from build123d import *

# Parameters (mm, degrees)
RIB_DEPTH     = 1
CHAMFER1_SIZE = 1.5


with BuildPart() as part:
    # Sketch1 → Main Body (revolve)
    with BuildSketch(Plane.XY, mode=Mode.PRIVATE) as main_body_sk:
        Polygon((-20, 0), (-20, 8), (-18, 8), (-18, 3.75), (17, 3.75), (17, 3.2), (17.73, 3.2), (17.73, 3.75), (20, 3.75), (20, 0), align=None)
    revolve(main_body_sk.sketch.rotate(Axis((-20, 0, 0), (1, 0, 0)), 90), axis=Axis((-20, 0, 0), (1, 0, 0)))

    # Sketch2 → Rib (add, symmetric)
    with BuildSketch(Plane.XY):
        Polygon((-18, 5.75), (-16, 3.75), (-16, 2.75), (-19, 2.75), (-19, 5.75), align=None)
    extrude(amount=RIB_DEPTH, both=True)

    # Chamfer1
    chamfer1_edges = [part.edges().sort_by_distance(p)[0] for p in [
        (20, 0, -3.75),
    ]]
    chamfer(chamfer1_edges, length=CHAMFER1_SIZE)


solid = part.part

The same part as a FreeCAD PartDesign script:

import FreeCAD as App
import Part
import Sketcher
Q = App.Units.Quantity


def edges_at(feature, points):
    """Names of the edges that pass closest to the given points."""
    edges = feature.Shape.Edges
    near = lambda p: min(range(len(edges)), key=lambda i: edges[i].distToShape(Part.Vertex(*p))[0])
    return sorted({f"Edge{near(p) + 1}" for p in points})


def add_polygon(sketch, points):
    """Adds a closed chain of lines whose ends are joined by coincident constraints."""
    first, n = sketch.GeometryCount, len(points)
    for a, b in zip(points, points[1:] + points[:1]):
        sketch.addGeometry(Part.LineSegment(App.Vector(*a, 0), App.Vector(*b, 0)), False)
    for i in range(n):
        sketch.addConstraint(Sketcher.Constraint("Coincident", first + i, 2, first + (i + 1) % n, 1))

doc = App.newDocument("Part")
body = doc.addObject("PartDesign::Body", "Body")

# Sketch on XY plane
sketch1 = doc.addObject("Sketcher::SketchObject", "Sketch")
body.addObject(sketch1)
sketch1.AttachmentSupport = (doc.XY_Plane, [""])
sketch1.MapMode = "FlatFace"
add_polygon(sketch1, [(-20, 8), (-20, 0), (20, 0), (20, 3.8), (17.7, 3.8), (17.7, 3.2), (17, 3.2), (17, 3.8), (-18, 3.8), (-18, 8)])  # lines 0-9
sketch1.addConstraint([
    Sketcher.Constraint("Vertical", 0),
    Sketcher.Constraint("Horizontal", 1),
    Sketcher.Constraint("Vertical", 2),
    Sketcher.Constraint("Horizontal", 3),
    Sketcher.Constraint("Vertical", 4),
    Sketcher.Constraint("Horizontal", 5),
    Sketcher.Constraint("Vertical", 6),
    Sketcher.Constraint("Horizontal", 7),
    Sketcher.Constraint("Vertical", 8),
    Sketcher.Constraint("Horizontal", 9),
    Sketcher.Constraint("Symmetric", 0, 2, 1, 2, -1, 1),
    Sketcher.Constraint("Horizontal", 3, 2, 6, 2),
    Sketcher.Constraint("DistanceX", 1, 1, 1, 2, Q("40 mm")),
    Sketcher.Constraint("DistanceX", 7, 2, 7, 1, Q("35 mm")),
    Sketcher.Constraint("DistanceX", 9, 2, 9, 1, Q("2 mm")),
    Sketcher.Constraint("DistanceY", 0, 2, 0, 1, Q("8 mm")),
    Sketcher.Constraint("DistanceX", 3, 2, 3, 1, Q("2.27 mm")),
    Sketcher.Constraint("DistanceY", 2, 1, 2, 2, Q("3.75 mm")),
    Sketcher.Constraint("DistanceY", 4, 2, 4, 1, Q("0.55 mm")),
])
revolution = doc.addObject("PartDesign::Revolution", "Revolution")
body.addObject(revolution)
revolution.Profile = sketch1
revolution.ReferenceAxis = (sketch1, ["H_Axis"])
revolution.Angle = 360

# Sketch on XY plane
sketch2 = doc.addObject("Sketcher::SketchObject", "Sketch001")
body.addObject(sketch2)
sketch2.AttachmentSupport = (doc.XY_Plane, [""])
sketch2.MapMode = "FlatFace"
add_polygon(sketch2, [(-16, 3.8), (-18, 5.8), (-19, 5.8), (-19, 2.8), (-16, 2.8)])  # lines 0-4
sketch2.addConstraint([
    Sketcher.Constraint("Horizontal", 1),
    Sketcher.Constraint("Vertical", 2),
    Sketcher.Constraint("Horizontal", 3),
    Sketcher.Constraint("Vertical", 4),
    Sketcher.Constraint("Equal", 3, 2),
    Sketcher.Constraint("Equal", 1, 4),
    Sketcher.Constraint("DistanceX", 1, 2, 1, 1, Q("1 mm")),
    Sketcher.Constraint("DistanceX", 3, 1, 3, 2, Q("3 mm")),
    Sketcher.Constraint("DistanceX", 0, 2, -1, 1, Q("18 mm")),
    Sketcher.Constraint("DistanceY", -1, 1, 0, 2, Q("5.75 mm")),
])
pad1 = doc.addObject("PartDesign::Pad", "Pad")
body.addObject(pad1)
pad1.Profile = sketch2
pad1.Length = 2
pad1.Midplane = True
doc.recompute()

chamfer = doc.addObject("PartDesign::Chamfer", "Chamfer")
body.addObject(chamfer)
chamfer.Base = (pad1, edges_at(pad1, [(20, 0, -3.75)]))
chamfer.Size = 1.5

doc.recompute()
